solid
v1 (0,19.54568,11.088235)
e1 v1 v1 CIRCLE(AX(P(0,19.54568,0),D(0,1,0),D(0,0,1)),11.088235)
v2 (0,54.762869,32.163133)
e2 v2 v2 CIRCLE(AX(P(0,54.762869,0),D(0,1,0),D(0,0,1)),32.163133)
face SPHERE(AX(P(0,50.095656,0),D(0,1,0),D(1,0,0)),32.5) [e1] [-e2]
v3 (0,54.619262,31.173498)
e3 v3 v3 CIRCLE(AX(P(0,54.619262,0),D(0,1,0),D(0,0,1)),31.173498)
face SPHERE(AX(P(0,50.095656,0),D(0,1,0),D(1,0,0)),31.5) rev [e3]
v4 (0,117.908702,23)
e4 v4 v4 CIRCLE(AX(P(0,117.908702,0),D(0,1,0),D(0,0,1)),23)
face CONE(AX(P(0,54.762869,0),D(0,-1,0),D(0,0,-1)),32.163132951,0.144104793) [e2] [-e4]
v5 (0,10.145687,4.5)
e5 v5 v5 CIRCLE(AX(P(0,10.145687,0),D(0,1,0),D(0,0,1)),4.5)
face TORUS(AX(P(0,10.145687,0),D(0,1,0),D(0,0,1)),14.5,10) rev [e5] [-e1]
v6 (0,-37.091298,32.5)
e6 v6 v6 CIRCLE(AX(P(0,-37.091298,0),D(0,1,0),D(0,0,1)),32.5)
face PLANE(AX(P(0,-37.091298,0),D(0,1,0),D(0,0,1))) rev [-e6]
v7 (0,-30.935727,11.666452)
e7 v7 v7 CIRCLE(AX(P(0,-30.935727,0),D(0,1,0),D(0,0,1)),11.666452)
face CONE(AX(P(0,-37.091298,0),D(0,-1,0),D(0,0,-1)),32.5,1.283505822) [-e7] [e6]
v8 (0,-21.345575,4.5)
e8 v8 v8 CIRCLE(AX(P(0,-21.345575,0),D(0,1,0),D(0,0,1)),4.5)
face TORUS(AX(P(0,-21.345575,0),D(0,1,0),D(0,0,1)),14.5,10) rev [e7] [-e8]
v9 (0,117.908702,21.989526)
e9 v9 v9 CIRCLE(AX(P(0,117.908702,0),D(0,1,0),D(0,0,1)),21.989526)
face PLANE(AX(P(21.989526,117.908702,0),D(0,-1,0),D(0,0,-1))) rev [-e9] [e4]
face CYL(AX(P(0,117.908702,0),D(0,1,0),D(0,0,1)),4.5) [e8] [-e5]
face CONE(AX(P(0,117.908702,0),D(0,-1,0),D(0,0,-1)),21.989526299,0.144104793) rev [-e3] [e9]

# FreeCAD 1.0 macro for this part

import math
import FreeCAD as App
import Part
import Sketcher

V = App.Vector
Q = App.Units.Quantity

doc = App.newDocument("Part")
body = doc.addObject("PartDesign::Body", "Body")

# Sketch on XY plane
sketch1 = body.newObject("Sketcher::SketchObject", "Sketch")
sketch1.AttachmentSupport = (doc.getObject("XY_Plane"), [""])
sketch1.MapMode = "FlatFace"
sketch1.addGeometry([
    Part.LineSegment(V(0, -37.1, 0), V(32.5, -37.1, 0)),  # 0
    Part.LineSegment(V(32.5, -37.1, 0), V(11.7, -30.9, 0)),  # 1
    Part.ArcOfCircle(Part.Circle(V(14.5, -21.3, 0), V(0, 0, 1), 10), math.radians(-180), math.radians(-106)),  # 2
    Part.LineSegment(V(4.5, -21.3, 0), V(4.5, 10.1, 0)),  # 3
    Part.ArcOfCircle(Part.Circle(V(14.5, 10.1, 0), V(0, 0, 1), 10), math.radians(110), math.radians(180)),  # 4
    Part.ArcOfCircle(Part.Circle(V(0, 50.1, 0), V(0, 0, 1), 32.5), math.radians(-70), math.radians(8)),  # 5
    Part.LineSegment(V(32.2, 54.8, 0), V(23, 117.9, 0)),  # 6
    Part.LineSegment(V(23, 117.9, 0), V(22, 117.9, 0)),  # 7
    Part.LineSegment(V(22, 117.9, 0), V(31.2, 54.6, 0)),  # 8
    Part.ArcOfCircle(Part.Circle(V(0, 50.1, 0), V(0, 0, 1), 31.5), math.radians(-90), math.radians(8)),  # 9
    Part.LineSegment(V(0, 18.6, 0), V(0, -37.1, 0)),  # 10
], False)
sketch1.addConstraint([
    Sketcher.Constraint("Coincident", 0, 2, 1, 1),
    Sketcher.Constraint("Tangent", 1, 2, 2, 2),
    Sketcher.Constraint("Tangent", 2, 1, 3, 1),
    Sketcher.Constraint("Tangent", 3, 2, 4, 2),
    Sketcher.Constraint("Tangent", 4, 1, 5, 1),
    Sketcher.Constraint("Tangent", 5, 2, 6, 1),
    Sketcher.Constraint("Coincident", 6, 2, 7, 1),
    Sketcher.Constraint("Coincident", 7, 2, 8, 1),
    Sketcher.Constraint("Tangent", 8, 2, 9, 2),
    Sketcher.Constraint("Coincident", 9, 1, 10, 1),
    Sketcher.Constraint("Coincident", 10, 2, 0, 1),
    Sketcher.Constraint("Horizontal", 0),
    Sketcher.Constraint("Vertical", 3),
    Sketcher.Constraint("Horizontal", 7),
    Sketcher.Constraint("Vertical", 10),
    Sketcher.Constraint("Coincident", 9, 3, 5, 3),
    Sketcher.Constraint("Equal", 2, 4),
    Sketcher.Constraint("PointOnObject", 5, 3, -2),
    Sketcher.Constraint("PointOnObject", 9, 1, -2),
    Sketcher.Constraint("Parallel", 6, 8),
    Sketcher.Constraint("Radius", 2, Q("10 mm")),
    Sketcher.Constraint("Radius", 5, Q("32.5 mm")),
    Sketcher.Constraint("Radius", 9, Q("31.5 mm")),
    Sketcher.Constraint("DistanceX", 0, 1, 0, 2, Q("32.5 mm")),
    Sketcher.Constraint("DistanceX", -1, 1, 6, 2, Q("23 mm")),
    Sketcher.Constraint("DistanceX", 2, 3, 0, 2, Q("18 mm")),
    Sketcher.Constraint("Distance", 1, Q("21.723899 mm")),
    Sketcher.Constraint("DistanceY", 0, 2, -1, 1, Q("37.091298 mm")),
    Sketcher.Constraint("DistanceY", -1, 1, 6, 2, Q("117.908702 mm")),
    Sketcher.Constraint("DistanceX", -1, 1, 8, 2, Q("31.173498 mm")),
])
revolution = body.newObject("PartDesign::Revolution", "Revolution")
revolution.Profile = sketch1
revolution.ReferenceAxis = (sketch1, ["V_Axis"])
revolution.Angle = 360

doc.recompute()
